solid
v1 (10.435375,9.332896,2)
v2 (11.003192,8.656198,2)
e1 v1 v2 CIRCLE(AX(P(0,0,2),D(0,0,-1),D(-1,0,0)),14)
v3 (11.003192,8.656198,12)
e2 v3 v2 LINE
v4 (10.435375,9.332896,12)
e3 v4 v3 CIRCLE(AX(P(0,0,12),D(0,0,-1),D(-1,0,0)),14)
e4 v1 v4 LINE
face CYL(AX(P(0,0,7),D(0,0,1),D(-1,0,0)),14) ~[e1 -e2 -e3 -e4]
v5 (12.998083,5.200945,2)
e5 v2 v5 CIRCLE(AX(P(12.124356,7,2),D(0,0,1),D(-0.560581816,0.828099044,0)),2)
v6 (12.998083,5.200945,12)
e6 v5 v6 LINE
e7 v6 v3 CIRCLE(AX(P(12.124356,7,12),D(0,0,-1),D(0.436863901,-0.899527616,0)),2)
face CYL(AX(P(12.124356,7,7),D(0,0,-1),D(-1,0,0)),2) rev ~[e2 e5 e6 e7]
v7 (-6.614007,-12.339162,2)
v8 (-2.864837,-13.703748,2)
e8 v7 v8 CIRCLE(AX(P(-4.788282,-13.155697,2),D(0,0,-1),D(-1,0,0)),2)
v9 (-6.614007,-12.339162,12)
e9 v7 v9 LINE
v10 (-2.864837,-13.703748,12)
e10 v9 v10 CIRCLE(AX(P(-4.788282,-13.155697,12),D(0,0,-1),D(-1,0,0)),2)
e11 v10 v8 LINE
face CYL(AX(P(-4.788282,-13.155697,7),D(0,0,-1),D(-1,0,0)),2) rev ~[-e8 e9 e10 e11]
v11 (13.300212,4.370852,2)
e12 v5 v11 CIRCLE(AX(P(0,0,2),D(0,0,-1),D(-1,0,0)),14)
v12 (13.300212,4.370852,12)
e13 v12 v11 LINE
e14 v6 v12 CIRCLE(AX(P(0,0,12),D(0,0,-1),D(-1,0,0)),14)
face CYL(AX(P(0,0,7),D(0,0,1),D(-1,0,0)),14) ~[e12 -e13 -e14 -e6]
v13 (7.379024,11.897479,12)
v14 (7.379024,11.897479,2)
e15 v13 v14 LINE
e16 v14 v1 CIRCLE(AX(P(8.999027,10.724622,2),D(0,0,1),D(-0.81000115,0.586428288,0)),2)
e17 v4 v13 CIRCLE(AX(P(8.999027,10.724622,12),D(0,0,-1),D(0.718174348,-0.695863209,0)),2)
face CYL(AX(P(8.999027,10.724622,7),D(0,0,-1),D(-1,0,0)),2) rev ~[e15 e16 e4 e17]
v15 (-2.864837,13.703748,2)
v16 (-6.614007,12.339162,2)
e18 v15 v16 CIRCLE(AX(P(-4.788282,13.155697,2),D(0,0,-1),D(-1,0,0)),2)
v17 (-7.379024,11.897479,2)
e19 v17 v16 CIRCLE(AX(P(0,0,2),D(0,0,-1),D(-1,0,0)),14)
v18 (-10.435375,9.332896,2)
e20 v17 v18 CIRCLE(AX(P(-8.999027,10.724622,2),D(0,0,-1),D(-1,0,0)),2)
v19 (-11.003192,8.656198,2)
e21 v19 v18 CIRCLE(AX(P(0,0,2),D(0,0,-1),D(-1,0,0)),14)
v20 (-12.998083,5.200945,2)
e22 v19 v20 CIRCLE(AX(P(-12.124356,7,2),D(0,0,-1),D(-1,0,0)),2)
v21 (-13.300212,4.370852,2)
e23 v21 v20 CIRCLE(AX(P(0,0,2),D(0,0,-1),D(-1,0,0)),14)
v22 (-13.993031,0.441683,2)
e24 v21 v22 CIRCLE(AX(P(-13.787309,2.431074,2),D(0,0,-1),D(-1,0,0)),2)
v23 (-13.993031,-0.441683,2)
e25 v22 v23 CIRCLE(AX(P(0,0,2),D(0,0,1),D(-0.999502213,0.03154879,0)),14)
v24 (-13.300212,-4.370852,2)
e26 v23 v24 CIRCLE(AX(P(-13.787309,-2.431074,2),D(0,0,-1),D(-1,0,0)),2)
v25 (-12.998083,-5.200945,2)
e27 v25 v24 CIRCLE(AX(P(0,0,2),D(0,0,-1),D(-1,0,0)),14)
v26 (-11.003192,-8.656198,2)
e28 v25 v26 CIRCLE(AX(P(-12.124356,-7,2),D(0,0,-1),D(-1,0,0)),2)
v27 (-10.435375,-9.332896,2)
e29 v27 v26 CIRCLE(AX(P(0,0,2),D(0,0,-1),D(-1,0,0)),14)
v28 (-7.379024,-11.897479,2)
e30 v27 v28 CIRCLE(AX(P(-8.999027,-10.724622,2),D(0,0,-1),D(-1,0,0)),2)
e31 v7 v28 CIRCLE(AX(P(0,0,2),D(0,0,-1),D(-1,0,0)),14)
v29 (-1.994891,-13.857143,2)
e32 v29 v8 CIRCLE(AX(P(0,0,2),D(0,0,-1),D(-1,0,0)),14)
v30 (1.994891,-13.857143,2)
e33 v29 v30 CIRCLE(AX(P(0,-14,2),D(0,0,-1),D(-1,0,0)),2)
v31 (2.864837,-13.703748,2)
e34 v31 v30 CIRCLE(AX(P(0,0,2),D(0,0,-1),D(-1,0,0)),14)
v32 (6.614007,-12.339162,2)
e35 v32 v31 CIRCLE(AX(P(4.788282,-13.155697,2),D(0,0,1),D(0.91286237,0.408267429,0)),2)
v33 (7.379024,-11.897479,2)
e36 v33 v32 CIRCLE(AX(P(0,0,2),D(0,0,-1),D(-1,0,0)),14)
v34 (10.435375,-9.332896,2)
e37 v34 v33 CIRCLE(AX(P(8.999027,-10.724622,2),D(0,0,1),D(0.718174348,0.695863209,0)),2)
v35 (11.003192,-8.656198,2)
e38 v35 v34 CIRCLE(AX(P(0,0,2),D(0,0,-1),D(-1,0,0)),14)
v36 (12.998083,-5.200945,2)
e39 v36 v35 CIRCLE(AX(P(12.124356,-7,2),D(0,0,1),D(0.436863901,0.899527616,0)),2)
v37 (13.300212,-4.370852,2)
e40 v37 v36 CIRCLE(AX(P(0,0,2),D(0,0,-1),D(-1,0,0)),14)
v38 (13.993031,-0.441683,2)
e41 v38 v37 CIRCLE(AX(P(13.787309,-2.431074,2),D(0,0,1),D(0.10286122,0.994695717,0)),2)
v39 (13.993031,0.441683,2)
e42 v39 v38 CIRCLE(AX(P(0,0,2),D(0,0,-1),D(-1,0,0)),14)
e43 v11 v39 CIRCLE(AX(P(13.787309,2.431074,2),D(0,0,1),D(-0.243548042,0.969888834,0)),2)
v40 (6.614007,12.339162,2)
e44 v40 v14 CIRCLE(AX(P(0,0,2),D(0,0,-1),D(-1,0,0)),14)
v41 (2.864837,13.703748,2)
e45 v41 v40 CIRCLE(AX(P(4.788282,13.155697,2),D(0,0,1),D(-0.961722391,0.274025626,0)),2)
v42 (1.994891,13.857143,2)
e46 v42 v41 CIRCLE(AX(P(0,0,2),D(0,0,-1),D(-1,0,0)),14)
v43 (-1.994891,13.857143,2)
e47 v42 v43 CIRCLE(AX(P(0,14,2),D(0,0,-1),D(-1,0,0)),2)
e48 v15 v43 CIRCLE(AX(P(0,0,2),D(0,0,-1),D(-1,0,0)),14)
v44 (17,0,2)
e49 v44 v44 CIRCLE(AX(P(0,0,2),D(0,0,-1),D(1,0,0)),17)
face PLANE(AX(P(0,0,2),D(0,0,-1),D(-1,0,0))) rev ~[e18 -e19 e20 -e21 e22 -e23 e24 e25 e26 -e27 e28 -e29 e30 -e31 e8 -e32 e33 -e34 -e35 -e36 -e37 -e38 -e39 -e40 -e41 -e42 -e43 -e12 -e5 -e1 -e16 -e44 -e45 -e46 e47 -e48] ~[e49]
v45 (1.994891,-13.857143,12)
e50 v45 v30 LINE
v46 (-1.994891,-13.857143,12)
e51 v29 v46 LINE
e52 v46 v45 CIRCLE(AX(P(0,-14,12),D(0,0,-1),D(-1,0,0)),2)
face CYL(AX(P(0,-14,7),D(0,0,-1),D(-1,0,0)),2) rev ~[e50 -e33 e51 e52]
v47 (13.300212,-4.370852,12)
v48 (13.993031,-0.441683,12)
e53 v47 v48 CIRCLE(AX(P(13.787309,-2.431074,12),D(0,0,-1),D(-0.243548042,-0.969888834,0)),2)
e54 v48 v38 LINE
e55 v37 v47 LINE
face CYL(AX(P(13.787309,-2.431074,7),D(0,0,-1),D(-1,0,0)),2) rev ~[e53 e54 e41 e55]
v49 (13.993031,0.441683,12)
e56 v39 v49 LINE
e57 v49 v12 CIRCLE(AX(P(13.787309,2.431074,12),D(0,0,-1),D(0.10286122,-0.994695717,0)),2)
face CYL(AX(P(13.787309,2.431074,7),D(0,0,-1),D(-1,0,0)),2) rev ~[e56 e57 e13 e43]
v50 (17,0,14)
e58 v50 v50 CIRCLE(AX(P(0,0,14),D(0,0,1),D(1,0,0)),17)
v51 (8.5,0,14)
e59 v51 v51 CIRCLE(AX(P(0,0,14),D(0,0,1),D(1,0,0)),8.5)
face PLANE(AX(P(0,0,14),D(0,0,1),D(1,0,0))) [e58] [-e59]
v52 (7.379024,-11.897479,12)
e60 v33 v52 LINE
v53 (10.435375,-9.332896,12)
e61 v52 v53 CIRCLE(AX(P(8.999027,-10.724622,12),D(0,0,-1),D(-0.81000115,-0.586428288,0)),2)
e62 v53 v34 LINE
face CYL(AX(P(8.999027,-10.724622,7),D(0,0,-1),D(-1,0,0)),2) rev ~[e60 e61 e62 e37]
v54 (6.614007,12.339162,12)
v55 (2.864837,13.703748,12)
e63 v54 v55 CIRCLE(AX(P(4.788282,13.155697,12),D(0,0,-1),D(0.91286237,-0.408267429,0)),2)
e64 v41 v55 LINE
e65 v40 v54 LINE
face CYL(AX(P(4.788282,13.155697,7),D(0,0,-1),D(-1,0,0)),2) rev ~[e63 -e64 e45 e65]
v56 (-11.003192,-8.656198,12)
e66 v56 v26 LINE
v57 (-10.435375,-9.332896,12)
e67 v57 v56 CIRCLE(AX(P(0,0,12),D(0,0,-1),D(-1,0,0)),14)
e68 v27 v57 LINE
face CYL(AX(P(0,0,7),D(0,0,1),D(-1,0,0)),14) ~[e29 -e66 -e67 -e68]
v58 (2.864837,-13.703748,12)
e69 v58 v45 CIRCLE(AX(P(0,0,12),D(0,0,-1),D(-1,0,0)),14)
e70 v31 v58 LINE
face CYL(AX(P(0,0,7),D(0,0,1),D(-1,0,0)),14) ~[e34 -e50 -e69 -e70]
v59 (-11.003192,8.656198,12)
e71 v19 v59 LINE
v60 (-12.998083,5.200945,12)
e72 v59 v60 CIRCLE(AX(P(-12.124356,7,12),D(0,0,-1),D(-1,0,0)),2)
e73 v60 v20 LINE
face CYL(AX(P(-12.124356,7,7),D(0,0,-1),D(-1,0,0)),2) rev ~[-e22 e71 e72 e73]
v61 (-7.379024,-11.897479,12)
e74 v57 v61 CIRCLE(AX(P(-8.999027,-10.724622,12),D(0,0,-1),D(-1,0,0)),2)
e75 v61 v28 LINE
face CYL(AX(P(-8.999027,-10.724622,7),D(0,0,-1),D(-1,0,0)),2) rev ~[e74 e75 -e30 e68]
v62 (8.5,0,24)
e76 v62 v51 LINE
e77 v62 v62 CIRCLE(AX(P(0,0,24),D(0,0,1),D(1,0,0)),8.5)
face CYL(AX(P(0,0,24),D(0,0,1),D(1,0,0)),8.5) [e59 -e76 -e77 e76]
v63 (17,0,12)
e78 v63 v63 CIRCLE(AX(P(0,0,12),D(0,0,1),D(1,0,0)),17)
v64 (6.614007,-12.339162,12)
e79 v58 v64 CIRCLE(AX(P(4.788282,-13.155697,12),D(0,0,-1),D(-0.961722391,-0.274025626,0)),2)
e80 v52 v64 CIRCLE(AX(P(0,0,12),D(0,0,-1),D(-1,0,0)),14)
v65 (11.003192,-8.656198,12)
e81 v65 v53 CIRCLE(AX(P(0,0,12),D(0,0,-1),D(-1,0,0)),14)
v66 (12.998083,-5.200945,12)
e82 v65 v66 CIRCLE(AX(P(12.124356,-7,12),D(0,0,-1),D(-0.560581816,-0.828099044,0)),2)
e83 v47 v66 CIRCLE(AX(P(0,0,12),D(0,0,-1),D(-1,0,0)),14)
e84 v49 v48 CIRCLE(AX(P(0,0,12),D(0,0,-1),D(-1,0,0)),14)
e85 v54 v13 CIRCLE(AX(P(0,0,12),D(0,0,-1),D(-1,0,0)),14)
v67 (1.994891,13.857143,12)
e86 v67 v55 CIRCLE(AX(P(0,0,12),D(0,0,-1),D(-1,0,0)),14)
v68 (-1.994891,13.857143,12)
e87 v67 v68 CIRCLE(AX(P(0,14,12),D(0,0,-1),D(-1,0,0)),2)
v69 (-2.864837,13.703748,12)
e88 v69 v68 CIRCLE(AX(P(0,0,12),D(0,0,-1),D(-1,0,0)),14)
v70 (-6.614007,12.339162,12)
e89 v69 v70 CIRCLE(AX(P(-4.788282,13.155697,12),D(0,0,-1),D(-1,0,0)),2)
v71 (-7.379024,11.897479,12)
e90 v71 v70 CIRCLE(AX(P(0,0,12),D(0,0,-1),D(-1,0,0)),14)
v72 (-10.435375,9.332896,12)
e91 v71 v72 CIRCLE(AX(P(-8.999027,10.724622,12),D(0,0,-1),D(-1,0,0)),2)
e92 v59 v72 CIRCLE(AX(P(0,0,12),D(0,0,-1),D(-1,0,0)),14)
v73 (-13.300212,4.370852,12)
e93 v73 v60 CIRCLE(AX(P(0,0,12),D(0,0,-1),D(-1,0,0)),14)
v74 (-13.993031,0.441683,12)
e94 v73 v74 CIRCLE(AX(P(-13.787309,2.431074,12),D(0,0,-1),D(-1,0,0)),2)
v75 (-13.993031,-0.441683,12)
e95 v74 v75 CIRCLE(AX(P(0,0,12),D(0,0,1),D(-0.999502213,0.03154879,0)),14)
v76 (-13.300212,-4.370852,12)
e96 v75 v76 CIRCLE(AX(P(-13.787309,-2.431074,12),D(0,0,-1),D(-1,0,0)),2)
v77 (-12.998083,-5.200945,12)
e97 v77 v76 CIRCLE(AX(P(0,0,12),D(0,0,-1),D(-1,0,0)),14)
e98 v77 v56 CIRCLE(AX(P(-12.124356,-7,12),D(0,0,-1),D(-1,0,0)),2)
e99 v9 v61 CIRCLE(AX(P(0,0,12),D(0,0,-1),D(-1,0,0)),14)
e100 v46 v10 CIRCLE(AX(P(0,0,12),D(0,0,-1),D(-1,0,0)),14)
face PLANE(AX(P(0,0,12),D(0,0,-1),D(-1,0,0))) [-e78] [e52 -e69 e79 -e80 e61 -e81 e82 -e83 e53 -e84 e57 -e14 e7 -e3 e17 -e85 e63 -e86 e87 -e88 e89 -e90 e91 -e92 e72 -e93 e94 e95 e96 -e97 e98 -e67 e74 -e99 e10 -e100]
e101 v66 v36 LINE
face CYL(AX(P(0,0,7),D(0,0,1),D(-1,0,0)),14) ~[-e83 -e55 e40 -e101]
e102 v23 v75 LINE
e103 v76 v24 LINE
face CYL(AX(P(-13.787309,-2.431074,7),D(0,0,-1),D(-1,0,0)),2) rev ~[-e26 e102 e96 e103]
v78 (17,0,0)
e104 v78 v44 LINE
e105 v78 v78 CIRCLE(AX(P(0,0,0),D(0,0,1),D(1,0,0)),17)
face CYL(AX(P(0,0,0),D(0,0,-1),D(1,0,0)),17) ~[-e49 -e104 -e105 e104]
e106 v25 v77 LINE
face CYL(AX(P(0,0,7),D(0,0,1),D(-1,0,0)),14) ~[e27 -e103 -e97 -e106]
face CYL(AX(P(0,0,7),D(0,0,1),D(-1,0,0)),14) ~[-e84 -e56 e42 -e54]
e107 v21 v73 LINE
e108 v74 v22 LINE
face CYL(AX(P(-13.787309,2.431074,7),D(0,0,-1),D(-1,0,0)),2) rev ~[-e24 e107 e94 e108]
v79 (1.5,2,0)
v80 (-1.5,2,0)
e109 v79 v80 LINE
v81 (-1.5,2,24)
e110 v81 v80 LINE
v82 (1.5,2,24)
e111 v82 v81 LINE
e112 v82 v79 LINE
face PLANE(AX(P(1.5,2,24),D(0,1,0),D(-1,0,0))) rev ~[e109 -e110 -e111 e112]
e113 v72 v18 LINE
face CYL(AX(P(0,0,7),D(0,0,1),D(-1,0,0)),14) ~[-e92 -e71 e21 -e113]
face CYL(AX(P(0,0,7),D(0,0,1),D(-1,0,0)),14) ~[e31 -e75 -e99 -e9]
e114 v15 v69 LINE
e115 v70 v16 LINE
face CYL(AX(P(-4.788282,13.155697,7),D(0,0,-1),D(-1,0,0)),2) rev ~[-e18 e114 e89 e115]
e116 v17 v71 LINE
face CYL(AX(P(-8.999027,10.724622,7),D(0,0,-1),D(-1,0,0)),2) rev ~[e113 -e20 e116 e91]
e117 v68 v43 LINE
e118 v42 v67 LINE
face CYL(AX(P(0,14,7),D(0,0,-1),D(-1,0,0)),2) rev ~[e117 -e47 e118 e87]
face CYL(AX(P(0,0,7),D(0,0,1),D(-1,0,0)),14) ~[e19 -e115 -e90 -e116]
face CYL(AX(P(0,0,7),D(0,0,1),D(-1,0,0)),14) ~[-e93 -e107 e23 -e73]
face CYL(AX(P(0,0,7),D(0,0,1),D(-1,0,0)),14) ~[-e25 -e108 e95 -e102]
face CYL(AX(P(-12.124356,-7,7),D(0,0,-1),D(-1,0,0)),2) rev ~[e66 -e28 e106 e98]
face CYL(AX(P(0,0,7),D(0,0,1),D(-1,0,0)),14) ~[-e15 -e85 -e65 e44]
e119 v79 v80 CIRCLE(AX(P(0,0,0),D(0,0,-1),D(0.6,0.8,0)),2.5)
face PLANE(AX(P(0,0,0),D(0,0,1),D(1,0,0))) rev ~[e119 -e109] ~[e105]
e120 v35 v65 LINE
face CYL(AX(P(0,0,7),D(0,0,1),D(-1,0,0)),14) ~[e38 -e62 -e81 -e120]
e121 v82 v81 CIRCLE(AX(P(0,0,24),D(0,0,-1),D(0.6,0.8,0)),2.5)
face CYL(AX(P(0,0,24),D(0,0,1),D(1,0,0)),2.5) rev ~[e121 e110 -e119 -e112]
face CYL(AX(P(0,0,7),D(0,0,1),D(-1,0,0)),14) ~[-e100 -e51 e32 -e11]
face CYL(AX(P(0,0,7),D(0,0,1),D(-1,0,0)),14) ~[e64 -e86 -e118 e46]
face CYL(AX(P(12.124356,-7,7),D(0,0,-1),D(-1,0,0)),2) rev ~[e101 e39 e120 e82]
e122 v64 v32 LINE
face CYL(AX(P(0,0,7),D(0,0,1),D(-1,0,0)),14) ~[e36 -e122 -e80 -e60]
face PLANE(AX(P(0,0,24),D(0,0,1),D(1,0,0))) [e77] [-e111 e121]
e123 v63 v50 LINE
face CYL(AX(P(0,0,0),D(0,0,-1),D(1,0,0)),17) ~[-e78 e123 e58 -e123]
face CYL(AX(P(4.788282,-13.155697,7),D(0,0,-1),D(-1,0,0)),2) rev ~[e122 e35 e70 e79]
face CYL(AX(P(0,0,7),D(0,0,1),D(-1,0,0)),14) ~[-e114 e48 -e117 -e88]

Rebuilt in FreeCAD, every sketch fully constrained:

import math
import FreeCAD as App
import Part
import Sketcher

V = App.Vector
Q = App.Units.Quantity

doc = App.newDocument("Part")
params = doc.addObject("Spreadsheet::Sheet", "Params")
for row, (alias, value) in enumerate([
    ("sketch1_diameter", "34 mm"),
    ("pad1_length", "14 mm"),
    ("sketch2_diameter", "5 mm"),
    ("sketch3_diameter", "17 mm"),
    ("sketch3_diameter2", "5 mm"),
    ("pad2_length", "10 mm"),
    ("sketch4_radius", "2.5 mm"),
    ("sketch4_width", "3 mm"),
    ("pad3_length", "24 mm"),
    ("sketch5_diameter", "34 mm"),
    ("sketch5_diameter2", "28 mm"),
    ("pocket2_length", "10 mm"),
    ("sketch6_diameter", "4 mm"),
    ("pocket3_length", "10 mm"),
], start=1):
    params.set(f"A{row}", alias)
    params.set(f"B{row}", "=" + value)
    params.setAlias(f"B{row}", alias)

body = doc.addObject("PartDesign::Body", "Body")

# Sketch on XY plane
sketch1 = body.newObject("Sketcher::SketchObject", "Sketch")
sketch1.AttachmentSupport = (doc.getObject("XY_Plane"), [""])
sketch1.MapMode = "FlatFace"
sketch1.addGeometry(Part.Circle(V(0, 0, 0), V(0, 0, 1), 17), False)
sketch1.addConstraint(Sketcher.Constraint("Coincident", 0, 3, -1, 1))
sketch1.addConstraint(Sketcher.Constraint("Diameter", 0, Q("34 mm")))
sketch1.setExpression("Constraints[1]", "Params.sketch1_diameter")
pad1 = body.newObject("PartDesign::Pad", "Pad")
pad1.Profile = sketch1
pad1.setExpression("Length", "Params.pad1_length")

# Sketch on XY plane
sketch2 = body.newObject("Sketcher::SketchObject", "Sketch001")
sketch2.AttachmentSupport = (doc.getObject("XY_Plane"), [""])
sketch2.MapMode = "FlatFace"
sketch2.AttachmentOffset = App.Placement(V(0, 0, 14), App.Rotation())
sketch2.addGeometry(Part.Circle(V(0, 0, 0), V(0, 0, 1), 2.5), False)
sketch2.addConstraint(Sketcher.Constraint("Coincident", 0, 3, -1, 1))
sketch2.addConstraint(Sketcher.Constraint("Diameter", 0, Q("5 mm")))
sketch2.setExpression("Constraints[1]", "Params.sketch2_diameter")
pocket1 = body.newObject("PartDesign::Pocket", "Pocket")
pocket1.Profile = sketch2
pocket1.Type = "UpToFirst"

# Sketch on XY plane
sketch3 = body.newObject("Sketcher::SketchObject", "Sketch002")
sketch3.AttachmentSupport = (doc.getObject("XY_Plane"), [""])
sketch3.MapMode = "FlatFace"
sketch3.AttachmentOffset = App.Placement(V(0, 0, 24), App.Rotation())
sketch3.addGeometry(Part.Circle(V(0, 0, 0), V(0, 0, 1), 8.5), False)
sketch3.addGeometry(Part.Circle(V(0, 0, 0), V(0, 0, 1), 2.5), False)
sketch3.addConstraint(Sketcher.Constraint("Coincident", 0, 3, -1, 1))
sketch3.addConstraint(Sketcher.Constraint("Coincident", 1, 3, -1, 1))
sketch3.addConstraint(Sketcher.Constraint("Diameter", 0, Q("17 mm")))
sketch3.addConstraint(Sketcher.Constraint("Diameter", 1, Q("5 mm")))
sketch3.setExpression("Constraints[2]", "Params.sketch3_diameter")
sketch3.setExpression("Constraints[3]", "Params.sketch3_diameter2")
pad2 = body.newObject("PartDesign::Pad", "Pad001")
pad2.Profile = sketch3
pad2.setExpression("Length", "Params.pad2_length")
pad2.Reversed = True

# Sketch on XY plane
sketch4 = body.newObject("Sketcher::SketchObject", "Sketch003")
sketch4.AttachmentSupport = (doc.getObject("XY_Plane"), [""])
sketch4.MapMode = "FlatFace"
sketch4.AttachmentOffset = App.Placement(V(0, 0, 24), App.Rotation())
sketch4.addGeometry(Part.LineSegment(V(-1.5, 2, 0), V(1.5, 2, 0)), False)
sketch4.addGeometry(Part.ArcOfCircle(Part.Circle(V(0, 0, 0), V(0, 0, 1), 2.5), math.radians(53.130102), math.radians(126.869898)), False)
sketch4.addConstraint(Sketcher.Constraint("Coincident", 0, 1, 1, 2))
sketch4.addConstraint(Sketcher.Constraint("Coincident", 1, 1, 0, 2))
sketch4.addConstraint(Sketcher.Constraint("Horizontal", 0))
sketch4.addConstraint(Sketcher.Constraint("Coincident", 1, 3, -1, 1))
sketch4.addConstraint(Sketcher.Constraint("Radius", 1, Q("2.5 mm")))
sketch4.addConstraint(Sketcher.Constraint("DistanceX", 0, 1, 0, 2, Q("3 mm")))
sketch4.setExpression("Constraints[4]", "Params.sketch4_radius")
sketch4.setExpression("Constraints[5]", "Params.sketch4_width")
pad3 = body.newObject("PartDesign::Pad", "Pad002")
pad3.Profile = sketch4
pad3.setExpression("Length", "Params.pad3_length")
pad3.Reversed = True

# Sketch on XY plane
sketch5 = body.newObject("Sketcher::SketchObject", "Sketch004")
sketch5.AttachmentSupport = (doc.getObject("XY_Plane"), [""])
sketch5.MapMode = "FlatFace"
sketch5.AttachmentOffset = App.Placement(V(0, 0, 7), App.Rotation())
sketch5.addGeometry(Part.Circle(V(0, 0, 0), V(0, 0, 1), 17), False)
sketch5.addGeometry(Part.Circle(V(0, 0, 0), V(0, 0, 1), 14), False)
sketch5.addConstraint(Sketcher.Constraint("Coincident", 0, 3, -1, 1))
sketch5.addConstraint(Sketcher.Constraint("Coincident", 1, 3, -1, 1))
sketch5.addConstraint(Sketcher.Constraint("Diameter", 0, Q("34 mm")))
sketch5.addConstraint(Sketcher.Constraint("Diameter", 1, Q("28 mm")))
sketch5.setExpression("Constraints[2]", "Params.sketch5_diameter")
sketch5.setExpression("Constraints[3]", "Params.sketch5_diameter2")
pocket2 = body.newObject("PartDesign::Pocket", "Pocket001")
pocket2.Profile = sketch5
pocket2.setExpression("Length", "Params.pocket2_length")
pocket2.Midplane = True

# Sketch on XY plane
sketch6 = body.newObject("Sketcher::SketchObject", "Sketch005")
sketch6.AttachmentSupport = (doc.getObject("XY_Plane"), [""])
sketch6.MapMode = "FlatFace"
sketch6.AttachmentOffset = App.Placement(V(0, 0, 7), App.Rotation())
sketch6.addGeometry(Part.Circle(V(0, 14, 0), V(0, 0, 1), 2), False)
sketch6.addGeometry(Part.Circle(V(-4.788282, 13.155697, 0), V(0, 0, 1), 2), False)
sketch6.addGeometry(Part.Circle(V(-8.999027, 10.724622, 0), V(0, 0, 1), 2), False)
sketch6.addGeometry(Part.Circle(V(-12.124356, 7, 0), V(0, 0, 1), 2), False)
sketch6.addGeometry(Part.Circle(V(-13.787309, 2.431074, 0), V(0, 0, 1), 2), False)
sketch6.addGeometry(Part.Circle(V(-13.787309, -2.431074, 0), V(0, 0, 1), 2), False)
sketch6.addGeometry(Part.Circle(V(-12.124356, -7, 0), V(0, 0, 1), 2), False)
sketch6.addGeometry(Part.Circle(V(-8.999027, -10.724622, 0), V(0, 0, 1), 2), False)
sketch6.addGeometry(Part.Circle(V(-4.788282, -13.155697, 0), V(0, 0, 1), 2), False)
sketch6.addGeometry(Part.Circle(V(0, -14, 0), V(0, 0, 1), 2), False)
sketch6.addGeometry(Part.Circle(V(4.788282, -13.155697, 0), V(0, 0, 1), 2), False)
sketch6.addGeometry(Part.Circle(V(8.999027, -10.724622, 0), V(0, 0, 1), 2), False)
sketch6.addGeometry(Part.Circle(V(12.124356, -7, 0), V(0, 0, 1), 2), False)
sketch6.addGeometry(Part.Circle(V(13.787309, -2.431074, 0), V(0, 0, 1), 2), False)
sketch6.addGeometry(Part.Circle(V(13.787309, 2.431074, 0), V(0, 0, 1), 2), False)
sketch6.addGeometry(Part.Circle(V(12.124356, 7, 0), V(0, 0, 1), 2), False)
sketch6.addGeometry(Part.Circle(V(8.999027, 10.724622, 0), V(0, 0, 1), 2), False)
sketch6.addGeometry(Part.Circle(V(4.788282, 13.155697, 0), V(0, 0, 1), 2), False)
sketch6.addConstraint(Sketcher.Constraint("Equal", 0, 1))
sketch6.addConstraint(Sketcher.Constraint("Equal", 1, 2))
sketch6.addConstraint(Sketcher.Constraint("Equal", 2, 3))
sketch6.addConstraint(Sketcher.Constraint("Equal", 3, 4))
sketch6.addConstraint(Sketcher.Constraint("Equal", 4, 5))
sketch6.addConstraint(Sketcher.Constraint("Equal", 5, 6))
sketch6.addConstraint(Sketcher.Constraint("Equal", 6, 7))
sketch6.addConstraint(Sketcher.Constraint("Equal", 7, 8))
sketch6.addConstraint(Sketcher.Constraint("Equal", 8, 9))
sketch6.addConstraint(Sketcher.Constraint("Equal", 9, 10))
sketch6.addConstraint(Sketcher.Constraint("Equal", 10, 11))
sketch6.addConstraint(Sketcher.Constraint("Equal", 11, 12))
sketch6.addConstraint(Sketcher.Constraint("Equal", 12, 13))
sketch6.addConstraint(Sketcher.Constraint("Equal", 13, 14))
sketch6.addConstraint(Sketcher.Constraint("Equal", 14, 15))
sketch6.addConstraint(Sketcher.Constraint("Equal", 15, 16))
sketch6.addConstraint(Sketcher.Constraint("Equal", 16, 17))
sketch6.addConstraint(Sketcher.Constraint("Symmetric", 0, 3, 9, 3, -1, 1))
sketch6.addConstraint(Sketcher.Constraint("Symmetric", 1, 3, 10, 3, -1, 1))
sketch6.addConstraint(Sketcher.Constraint("Symmetric", 2, 3, 11, 3, -1, 1))
sketch6.addConstraint(Sketcher.Constraint("Symmetric", 3, 3, 12, 3, -1, 1))
sketch6.addConstraint(Sketcher.Constraint("Symmetric", 4, 3, 13, 3, -1, 1))
sketch6.addConstraint(Sketcher.Constraint("Symmetric", 5, 3, 14, 3, -1, 1))
sketch6.addConstraint(Sketcher.Constraint("Symmetric", 6, 3, 15, 3, -1, 1))
sketch6.addConstraint(Sketcher.Constraint("Symmetric", 7, 3, 16, 3, -1, 1))
sketch6.addConstraint(Sketcher.Constraint("Symmetric", 8, 3, 17, 3, -1, 1))
sketch6.addConstraint(Sketcher.Constraint("Symmetric", 8, 3, 10, 3, -2))
sketch6.addConstraint(Sketcher.Constraint("Symmetric", 7, 3, 11, 3, -2))
sketch6.addConstraint(Sketcher.Constraint("Symmetric", 6, 3, 12, 3, -2))
sketch6.addConstraint(Sketcher.Constraint("Symmetric", 5, 3, 13, 3, -2))
sketch6.addConstraint(Sketcher.Constraint("PointOnObject", 0, 3, -2))
sketch6.addConstraint(Sketcher.Constraint("Diameter", 0, Q("4 mm")))
sketch6.addConstraint(Sketcher.Constraint("DistanceY", -1, 1, 0, 3, Q("14 mm")))
sketch6.addConstraint(Sketcher.Constraint("DistanceY", -1, 1, 3, 3, Q("7 mm")))
sketch6.addConstraint(Sketcher.Constraint("DistanceX", 4, 3, -1, 1, Q("13.787309 mm")))
sketch6.addConstraint(Sketcher.Constraint("DistanceX", 3, 3, 2, 3, Q("3.125329 mm")))
sketch6.addConstraint(Sketcher.Constraint("DistanceY", 5, 3, 4, 3, Q("4.862149 mm")))
sketch6.addConstraint(Sketcher.Constraint("DistanceY", 5, 3, 1, 3, Q("15.586771 mm")))
sketch6.addConstraint(Sketcher.Constraint("DistanceX", 7, 3, 10, 3, Q("13.787309 mm")))
sketch6.addConstraint(Sketcher.Constraint("DistanceX", 5, 3, 10, 3, Q("18.575591 mm")))
sketch6.addConstraint(Sketcher.Constraint("DistanceY", -1, 1, 2, 3, Q("10.724622 mm")))
sketch6.setExpression("Constraints[31]", "Params.sketch6_diameter")
pocket3 = body.newObject("PartDesign::Pocket", "Pocket002")
pocket3.Profile = sketch6
pocket3.setExpression("Length", "Params.pocket3_length")
pocket3.Midplane = True

doc.recompute()
